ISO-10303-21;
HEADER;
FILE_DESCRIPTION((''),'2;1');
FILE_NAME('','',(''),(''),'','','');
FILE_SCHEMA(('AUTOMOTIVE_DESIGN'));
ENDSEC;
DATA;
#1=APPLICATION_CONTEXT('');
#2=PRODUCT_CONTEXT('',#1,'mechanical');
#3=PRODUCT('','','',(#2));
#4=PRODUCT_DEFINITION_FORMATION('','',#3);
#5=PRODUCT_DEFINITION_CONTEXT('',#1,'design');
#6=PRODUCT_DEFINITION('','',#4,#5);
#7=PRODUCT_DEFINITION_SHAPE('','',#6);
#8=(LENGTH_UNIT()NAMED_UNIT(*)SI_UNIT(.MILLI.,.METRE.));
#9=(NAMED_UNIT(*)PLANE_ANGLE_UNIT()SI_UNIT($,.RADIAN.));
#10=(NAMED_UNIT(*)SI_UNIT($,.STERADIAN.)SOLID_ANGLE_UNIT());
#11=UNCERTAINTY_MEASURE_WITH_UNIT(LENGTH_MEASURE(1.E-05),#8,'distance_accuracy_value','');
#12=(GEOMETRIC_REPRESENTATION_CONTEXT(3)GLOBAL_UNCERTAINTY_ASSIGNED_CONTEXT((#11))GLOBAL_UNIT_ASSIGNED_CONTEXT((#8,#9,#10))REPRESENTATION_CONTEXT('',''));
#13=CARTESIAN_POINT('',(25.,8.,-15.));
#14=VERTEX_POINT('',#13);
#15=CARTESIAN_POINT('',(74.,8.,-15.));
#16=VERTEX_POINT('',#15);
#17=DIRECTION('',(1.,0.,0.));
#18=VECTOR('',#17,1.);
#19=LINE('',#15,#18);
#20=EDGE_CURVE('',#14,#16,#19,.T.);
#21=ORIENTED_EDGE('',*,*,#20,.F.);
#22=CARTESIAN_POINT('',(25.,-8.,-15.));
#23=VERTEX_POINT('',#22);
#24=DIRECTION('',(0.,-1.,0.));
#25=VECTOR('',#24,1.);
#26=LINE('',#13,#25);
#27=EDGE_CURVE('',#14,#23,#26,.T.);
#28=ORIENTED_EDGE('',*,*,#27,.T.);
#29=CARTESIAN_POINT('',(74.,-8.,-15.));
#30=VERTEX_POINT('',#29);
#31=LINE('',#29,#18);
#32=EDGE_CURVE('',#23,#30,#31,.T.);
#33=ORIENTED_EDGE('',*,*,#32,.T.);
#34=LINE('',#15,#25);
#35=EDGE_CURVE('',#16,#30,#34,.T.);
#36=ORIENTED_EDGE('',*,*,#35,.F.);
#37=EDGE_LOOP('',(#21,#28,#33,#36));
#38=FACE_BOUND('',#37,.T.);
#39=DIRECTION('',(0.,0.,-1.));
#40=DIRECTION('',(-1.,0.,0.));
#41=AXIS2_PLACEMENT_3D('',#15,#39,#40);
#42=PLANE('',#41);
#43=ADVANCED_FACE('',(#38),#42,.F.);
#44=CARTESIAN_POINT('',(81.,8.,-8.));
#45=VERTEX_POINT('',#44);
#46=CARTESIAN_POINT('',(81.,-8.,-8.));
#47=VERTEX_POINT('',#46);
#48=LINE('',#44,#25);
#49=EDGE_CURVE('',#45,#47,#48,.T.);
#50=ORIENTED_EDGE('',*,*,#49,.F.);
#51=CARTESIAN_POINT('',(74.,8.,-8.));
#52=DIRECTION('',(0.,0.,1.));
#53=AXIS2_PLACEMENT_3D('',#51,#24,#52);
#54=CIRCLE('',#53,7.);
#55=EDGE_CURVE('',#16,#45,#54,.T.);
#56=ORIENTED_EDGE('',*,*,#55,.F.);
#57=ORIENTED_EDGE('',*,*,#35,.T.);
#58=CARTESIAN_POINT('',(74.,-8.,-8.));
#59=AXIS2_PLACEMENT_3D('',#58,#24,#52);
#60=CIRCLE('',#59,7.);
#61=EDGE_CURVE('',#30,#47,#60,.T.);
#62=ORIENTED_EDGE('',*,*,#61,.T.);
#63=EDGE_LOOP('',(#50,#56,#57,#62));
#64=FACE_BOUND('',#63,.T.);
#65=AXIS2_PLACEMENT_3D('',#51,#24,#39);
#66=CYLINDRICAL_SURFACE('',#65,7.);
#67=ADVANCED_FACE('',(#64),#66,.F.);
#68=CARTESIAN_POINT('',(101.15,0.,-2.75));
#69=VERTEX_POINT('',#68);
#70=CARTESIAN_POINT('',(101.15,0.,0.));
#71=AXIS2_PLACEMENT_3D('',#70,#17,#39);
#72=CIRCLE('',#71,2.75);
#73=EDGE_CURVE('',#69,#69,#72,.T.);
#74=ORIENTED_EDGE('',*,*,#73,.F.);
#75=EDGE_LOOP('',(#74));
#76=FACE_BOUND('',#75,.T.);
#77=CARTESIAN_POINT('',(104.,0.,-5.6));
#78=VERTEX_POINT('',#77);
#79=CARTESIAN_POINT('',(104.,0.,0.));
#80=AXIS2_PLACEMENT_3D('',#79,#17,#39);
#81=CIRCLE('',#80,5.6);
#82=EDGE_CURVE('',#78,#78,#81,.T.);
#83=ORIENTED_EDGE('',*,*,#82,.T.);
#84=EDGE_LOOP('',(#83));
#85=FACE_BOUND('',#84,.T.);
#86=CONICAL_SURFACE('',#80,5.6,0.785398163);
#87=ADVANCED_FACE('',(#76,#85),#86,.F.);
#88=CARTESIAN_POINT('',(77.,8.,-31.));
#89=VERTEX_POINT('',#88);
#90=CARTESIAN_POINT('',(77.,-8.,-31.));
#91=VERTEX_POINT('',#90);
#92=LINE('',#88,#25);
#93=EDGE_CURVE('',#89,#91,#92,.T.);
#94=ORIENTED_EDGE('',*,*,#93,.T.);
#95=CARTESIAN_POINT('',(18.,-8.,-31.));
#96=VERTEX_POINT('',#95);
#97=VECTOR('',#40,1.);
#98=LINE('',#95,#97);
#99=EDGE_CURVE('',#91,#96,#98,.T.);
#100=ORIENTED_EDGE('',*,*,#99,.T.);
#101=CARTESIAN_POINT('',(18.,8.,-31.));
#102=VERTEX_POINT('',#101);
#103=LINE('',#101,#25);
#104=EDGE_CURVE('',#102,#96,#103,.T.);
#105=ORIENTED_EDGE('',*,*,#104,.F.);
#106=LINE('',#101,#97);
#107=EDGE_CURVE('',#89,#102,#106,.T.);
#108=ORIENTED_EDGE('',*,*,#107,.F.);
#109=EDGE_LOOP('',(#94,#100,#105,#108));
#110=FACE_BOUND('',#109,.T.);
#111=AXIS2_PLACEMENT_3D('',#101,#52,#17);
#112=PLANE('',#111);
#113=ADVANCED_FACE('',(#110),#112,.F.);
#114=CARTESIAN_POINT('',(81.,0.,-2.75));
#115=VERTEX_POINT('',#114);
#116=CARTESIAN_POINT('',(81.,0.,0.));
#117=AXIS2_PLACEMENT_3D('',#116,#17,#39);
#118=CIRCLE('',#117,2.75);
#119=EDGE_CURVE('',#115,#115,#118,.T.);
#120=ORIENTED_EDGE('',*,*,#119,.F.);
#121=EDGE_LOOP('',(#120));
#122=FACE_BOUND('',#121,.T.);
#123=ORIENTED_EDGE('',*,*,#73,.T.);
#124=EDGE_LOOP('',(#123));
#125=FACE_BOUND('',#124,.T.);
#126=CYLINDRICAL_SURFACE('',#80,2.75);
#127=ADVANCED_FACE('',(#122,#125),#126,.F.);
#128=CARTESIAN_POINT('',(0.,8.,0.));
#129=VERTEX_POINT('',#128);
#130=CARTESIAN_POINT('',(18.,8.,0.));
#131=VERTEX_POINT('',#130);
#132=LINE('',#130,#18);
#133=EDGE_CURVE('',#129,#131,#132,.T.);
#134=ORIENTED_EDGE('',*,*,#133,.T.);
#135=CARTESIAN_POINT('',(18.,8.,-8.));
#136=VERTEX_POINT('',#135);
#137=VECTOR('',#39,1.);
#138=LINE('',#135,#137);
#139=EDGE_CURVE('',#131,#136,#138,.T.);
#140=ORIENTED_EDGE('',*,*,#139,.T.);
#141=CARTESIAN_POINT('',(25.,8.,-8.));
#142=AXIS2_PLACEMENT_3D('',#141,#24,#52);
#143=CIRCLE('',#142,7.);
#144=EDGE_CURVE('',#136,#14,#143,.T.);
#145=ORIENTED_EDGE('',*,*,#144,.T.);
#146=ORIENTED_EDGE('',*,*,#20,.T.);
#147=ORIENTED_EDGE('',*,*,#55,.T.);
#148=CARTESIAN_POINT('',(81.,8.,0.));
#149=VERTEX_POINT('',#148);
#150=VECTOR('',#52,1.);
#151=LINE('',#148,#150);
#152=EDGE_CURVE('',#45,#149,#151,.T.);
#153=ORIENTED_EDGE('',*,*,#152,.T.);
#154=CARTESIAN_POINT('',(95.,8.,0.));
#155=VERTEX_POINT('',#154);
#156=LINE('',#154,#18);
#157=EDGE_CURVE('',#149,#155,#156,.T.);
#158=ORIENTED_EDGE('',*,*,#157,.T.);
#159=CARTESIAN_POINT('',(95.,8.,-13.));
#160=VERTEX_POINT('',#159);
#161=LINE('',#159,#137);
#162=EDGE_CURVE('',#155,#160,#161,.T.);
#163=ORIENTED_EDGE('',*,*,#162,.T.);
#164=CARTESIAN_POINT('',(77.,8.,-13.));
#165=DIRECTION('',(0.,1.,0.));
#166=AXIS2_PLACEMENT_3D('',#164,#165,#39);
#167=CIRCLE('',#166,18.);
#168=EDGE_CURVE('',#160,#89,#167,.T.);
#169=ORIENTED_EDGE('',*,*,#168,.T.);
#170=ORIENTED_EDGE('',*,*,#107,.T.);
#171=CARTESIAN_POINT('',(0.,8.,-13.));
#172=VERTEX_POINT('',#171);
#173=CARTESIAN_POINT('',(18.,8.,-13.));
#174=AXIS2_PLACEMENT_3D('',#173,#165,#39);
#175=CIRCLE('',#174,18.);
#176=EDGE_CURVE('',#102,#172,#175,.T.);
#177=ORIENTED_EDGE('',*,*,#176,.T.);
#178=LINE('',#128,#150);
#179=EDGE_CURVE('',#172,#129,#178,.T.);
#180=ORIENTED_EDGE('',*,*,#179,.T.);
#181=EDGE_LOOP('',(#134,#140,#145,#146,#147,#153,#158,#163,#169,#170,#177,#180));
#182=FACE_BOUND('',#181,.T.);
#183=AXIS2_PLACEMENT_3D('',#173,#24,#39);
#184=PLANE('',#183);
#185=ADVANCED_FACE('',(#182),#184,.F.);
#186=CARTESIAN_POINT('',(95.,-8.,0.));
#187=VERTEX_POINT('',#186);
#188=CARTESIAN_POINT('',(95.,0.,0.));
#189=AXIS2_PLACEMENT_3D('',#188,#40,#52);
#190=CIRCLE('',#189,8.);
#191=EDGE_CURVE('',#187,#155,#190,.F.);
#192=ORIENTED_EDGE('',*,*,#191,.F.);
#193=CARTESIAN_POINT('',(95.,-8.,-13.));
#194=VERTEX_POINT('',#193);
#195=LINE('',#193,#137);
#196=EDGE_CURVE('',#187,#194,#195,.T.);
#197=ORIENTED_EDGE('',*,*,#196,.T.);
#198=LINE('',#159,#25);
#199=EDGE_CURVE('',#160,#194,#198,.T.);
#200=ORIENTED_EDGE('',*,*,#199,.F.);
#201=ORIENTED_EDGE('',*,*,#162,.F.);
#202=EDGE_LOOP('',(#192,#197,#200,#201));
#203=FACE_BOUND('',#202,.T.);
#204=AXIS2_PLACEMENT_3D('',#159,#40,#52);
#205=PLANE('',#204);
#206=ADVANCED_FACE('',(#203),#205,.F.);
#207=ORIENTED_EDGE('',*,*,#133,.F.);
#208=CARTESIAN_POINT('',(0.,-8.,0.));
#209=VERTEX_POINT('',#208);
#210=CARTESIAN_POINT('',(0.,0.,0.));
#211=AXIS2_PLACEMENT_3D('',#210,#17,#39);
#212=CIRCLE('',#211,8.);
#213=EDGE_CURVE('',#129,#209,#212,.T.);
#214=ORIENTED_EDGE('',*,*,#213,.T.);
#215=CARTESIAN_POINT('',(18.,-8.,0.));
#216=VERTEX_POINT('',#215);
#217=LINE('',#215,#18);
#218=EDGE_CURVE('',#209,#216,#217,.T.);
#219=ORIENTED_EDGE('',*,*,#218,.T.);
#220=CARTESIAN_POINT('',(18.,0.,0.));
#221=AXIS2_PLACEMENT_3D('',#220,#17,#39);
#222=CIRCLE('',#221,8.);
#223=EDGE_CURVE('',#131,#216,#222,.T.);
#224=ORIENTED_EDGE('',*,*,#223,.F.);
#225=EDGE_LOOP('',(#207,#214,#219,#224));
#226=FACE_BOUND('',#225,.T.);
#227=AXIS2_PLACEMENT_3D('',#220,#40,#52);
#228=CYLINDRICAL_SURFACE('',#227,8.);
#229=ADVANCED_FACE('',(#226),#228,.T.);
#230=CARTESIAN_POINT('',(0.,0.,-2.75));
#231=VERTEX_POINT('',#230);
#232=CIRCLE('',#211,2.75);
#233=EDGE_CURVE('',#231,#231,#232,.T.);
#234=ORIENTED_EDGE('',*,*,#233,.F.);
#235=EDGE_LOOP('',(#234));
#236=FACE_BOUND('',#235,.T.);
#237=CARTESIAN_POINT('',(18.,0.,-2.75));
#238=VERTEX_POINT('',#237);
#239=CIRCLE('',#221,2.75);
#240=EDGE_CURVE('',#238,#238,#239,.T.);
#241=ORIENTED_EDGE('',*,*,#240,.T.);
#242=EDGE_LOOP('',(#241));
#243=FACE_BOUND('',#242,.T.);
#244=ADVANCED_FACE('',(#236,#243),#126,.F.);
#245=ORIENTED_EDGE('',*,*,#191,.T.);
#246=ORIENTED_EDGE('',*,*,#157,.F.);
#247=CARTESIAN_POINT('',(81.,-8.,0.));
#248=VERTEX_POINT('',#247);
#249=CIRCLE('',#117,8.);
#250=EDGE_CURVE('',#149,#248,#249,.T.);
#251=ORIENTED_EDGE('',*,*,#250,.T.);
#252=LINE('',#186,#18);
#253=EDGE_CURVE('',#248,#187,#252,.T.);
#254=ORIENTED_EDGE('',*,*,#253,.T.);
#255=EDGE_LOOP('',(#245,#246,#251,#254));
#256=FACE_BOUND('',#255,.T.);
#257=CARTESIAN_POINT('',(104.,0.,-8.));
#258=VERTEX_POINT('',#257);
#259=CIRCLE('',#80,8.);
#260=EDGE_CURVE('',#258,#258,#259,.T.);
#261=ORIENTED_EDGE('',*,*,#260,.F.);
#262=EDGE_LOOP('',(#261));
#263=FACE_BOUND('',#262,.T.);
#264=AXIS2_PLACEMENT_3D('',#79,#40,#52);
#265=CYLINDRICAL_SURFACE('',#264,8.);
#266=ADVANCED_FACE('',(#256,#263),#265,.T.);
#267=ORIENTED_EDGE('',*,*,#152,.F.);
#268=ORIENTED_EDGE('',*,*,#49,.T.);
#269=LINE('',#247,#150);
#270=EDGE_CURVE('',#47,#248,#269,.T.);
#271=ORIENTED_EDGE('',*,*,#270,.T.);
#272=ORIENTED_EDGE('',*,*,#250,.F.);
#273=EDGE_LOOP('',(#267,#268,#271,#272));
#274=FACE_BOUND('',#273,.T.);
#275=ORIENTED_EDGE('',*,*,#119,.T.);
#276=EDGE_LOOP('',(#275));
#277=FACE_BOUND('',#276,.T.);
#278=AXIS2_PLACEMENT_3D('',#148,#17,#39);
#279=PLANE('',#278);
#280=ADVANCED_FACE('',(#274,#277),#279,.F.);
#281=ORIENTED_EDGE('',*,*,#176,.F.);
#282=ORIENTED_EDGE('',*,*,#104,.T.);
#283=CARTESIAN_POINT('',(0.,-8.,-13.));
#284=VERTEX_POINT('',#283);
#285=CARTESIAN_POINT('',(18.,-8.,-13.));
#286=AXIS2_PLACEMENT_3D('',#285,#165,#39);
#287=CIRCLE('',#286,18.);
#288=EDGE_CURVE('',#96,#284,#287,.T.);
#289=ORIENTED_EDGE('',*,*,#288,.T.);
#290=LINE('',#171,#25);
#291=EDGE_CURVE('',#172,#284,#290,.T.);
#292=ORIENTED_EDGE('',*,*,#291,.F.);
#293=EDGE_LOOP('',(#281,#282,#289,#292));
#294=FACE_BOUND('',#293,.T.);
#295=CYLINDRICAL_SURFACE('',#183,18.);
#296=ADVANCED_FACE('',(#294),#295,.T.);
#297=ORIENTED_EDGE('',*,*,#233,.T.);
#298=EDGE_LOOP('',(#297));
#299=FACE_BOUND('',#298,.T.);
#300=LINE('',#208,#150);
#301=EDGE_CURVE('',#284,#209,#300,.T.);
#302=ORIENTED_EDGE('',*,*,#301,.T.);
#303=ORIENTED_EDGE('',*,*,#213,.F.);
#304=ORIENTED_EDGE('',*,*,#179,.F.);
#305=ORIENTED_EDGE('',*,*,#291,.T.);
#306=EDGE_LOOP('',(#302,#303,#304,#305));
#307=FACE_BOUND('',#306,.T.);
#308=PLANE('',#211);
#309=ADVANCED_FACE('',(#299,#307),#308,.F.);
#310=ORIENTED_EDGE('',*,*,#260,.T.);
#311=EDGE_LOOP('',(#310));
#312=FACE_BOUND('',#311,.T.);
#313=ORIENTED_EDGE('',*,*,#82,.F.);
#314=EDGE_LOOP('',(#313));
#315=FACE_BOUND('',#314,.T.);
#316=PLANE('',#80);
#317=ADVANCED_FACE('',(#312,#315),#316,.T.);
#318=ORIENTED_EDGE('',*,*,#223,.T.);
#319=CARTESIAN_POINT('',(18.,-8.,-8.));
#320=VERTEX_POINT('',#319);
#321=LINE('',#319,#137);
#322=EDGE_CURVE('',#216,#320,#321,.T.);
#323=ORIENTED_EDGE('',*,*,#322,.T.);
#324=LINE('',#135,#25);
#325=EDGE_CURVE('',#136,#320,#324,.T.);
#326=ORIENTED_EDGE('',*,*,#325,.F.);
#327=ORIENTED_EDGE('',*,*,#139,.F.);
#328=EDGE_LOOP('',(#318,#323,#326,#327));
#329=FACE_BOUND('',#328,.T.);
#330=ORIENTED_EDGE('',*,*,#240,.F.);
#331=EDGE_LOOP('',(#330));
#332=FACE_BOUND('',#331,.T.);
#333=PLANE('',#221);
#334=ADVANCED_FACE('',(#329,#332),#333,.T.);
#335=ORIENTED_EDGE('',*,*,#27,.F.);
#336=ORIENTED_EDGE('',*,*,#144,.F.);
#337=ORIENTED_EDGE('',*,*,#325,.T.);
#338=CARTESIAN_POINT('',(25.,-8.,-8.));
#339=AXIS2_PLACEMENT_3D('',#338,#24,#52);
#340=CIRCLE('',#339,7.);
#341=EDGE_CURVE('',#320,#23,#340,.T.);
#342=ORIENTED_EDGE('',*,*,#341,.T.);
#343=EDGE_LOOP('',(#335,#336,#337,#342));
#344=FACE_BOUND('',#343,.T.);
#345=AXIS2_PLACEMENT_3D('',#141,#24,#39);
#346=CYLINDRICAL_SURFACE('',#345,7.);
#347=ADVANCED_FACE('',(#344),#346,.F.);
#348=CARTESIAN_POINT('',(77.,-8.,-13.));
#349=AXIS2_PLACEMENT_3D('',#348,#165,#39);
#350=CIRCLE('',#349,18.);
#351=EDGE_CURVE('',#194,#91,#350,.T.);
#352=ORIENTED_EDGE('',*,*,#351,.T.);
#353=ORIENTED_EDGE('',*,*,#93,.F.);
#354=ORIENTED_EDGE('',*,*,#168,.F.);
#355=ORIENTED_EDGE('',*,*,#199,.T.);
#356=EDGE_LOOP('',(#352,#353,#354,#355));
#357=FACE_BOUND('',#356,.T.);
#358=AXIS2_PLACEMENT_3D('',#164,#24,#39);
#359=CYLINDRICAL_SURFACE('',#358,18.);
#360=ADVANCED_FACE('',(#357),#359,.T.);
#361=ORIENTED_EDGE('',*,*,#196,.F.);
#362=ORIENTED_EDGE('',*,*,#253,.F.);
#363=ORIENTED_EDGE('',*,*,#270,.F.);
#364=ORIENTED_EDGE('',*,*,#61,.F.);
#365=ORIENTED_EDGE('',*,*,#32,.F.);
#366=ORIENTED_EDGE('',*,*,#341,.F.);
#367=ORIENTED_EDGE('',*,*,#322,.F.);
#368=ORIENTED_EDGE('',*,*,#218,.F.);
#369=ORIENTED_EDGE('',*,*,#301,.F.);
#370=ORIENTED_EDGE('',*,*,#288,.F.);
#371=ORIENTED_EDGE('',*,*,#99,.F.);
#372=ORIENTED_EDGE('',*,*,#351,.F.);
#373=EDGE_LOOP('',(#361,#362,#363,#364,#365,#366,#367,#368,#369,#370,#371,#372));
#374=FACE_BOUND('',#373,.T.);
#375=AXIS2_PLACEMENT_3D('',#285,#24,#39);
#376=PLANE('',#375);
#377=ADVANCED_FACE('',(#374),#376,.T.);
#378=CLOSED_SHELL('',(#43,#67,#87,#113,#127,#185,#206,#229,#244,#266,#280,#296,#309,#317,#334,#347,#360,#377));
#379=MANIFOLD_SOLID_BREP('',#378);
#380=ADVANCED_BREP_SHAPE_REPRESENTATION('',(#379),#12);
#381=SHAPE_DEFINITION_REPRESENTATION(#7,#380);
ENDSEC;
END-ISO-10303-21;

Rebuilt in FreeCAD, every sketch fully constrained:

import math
import FreeCAD as App
import Part
import Sketcher
Q = App.Units.Quantity

doc = App.newDocument("Part")
body = doc.addObject("PartDesign::Body", "Body")

# Sketch on YZ plane
sketch1 = doc.addObject("Sketcher::SketchObject", "Sketch")
body.addObject(sketch1)
sketch1.AttachmentSupport = (doc.YZ_Plane, [""])
sketch1.MapMode = "FlatFace"
sketch1.addGeometry(Part.Circle(App.Vector(0, 0, 0), App.Vector(0, 0, 1), 8), False)
sketch1.addConstraint([
    Sketcher.Constraint("Coincident", 0, 3, -1, 1),
    Sketcher.Constraint("Diameter", 0, Q("16 mm")),
])
pad1 = doc.addObject("PartDesign::Pad", "Pad")
body.addObject(pad1)
pad1.Profile = sketch1
pad1.Length = 18
body2 = doc.addObject("PartDesign::Body", "Body001")

# Sketch on YZ plane
sketch2 = doc.addObject("Sketcher::SketchObject", "Sketch001")
body2.addObject(sketch2)
sketch2.AttachmentSupport = (doc.getObject("YZ_Plane001"), [""])
sketch2.MapMode = "FlatFace"
sketch2.AttachmentOffset = App.Placement(App.Vector(0, 0, 81), App.Rotation())
sketch2.addGeometry(Part.Circle(App.Vector(0, 0, 0), App.Vector(0, 0, 1), 8), False)
sketch2.addConstraint([
    Sketcher.Constraint("Coincident", 0, 3, -1, 1),
    Sketcher.Constraint("Diameter", 0, Q("16 mm")),
])
pad2 = doc.addObject("PartDesign::Pad", "Pad001")
body2.addObject(pad2)
pad2.Profile = sketch2
pad2.Length = 23
body.AllowCompound = True
doc.recompute()

boolean = doc.addObject("PartDesign::Boolean", "Boolean")
body.addObject(boolean)
boolean.Type = "Fuse"
boolean.addObjects([body2])

# Sketch on XZ plane
sketch3 = doc.addObject("Sketcher::SketchObject", "Sketch002")
body.addObject(sketch3)
sketch3.AttachmentSupport = (doc.XZ_Plane, [""])
sketch3.MapMode = "FlatFace"
sketch3.addGeometry([
    Part.LineSegment(App.Vector(0, -13, 0), App.Vector(0, 0, 0)),  # 0
    Part.LineSegment(App.Vector(0, 0, 0), App.Vector(18, 0, 0)),  # 1
    Part.LineSegment(App.Vector(18, 0, 0), App.Vector(18, -8, 0)),  # 2
    Part.ArcOfCircle(Part.Circle(App.Vector(25, -8, 0), App.Vector(0, 0, 1), 7), math.radians(-180), math.radians(-90)),  # 3
    Part.LineSegment(App.Vector(25, -15, 0), App.Vector(74, -15, 0)),  # 4
    Part.ArcOfCircle(Part.Circle(App.Vector(74, -8, 0), App.Vector(0, 0, 1), 7), math.radians(-90), math.radians(0)),  # 5
    Part.LineSegment(App.Vector(81, -8, 0), App.Vector(81, 0, 0)),  # 6
    Part.LineSegment(App.Vector(81, 0, 0), App.Vector(95, 0, 0)),  # 7
    Part.LineSegment(App.Vector(95, 0, 0), App.Vector(95, -13, 0)),  # 8
    Part.ArcOfCircle(Part.Circle(App.Vector(77, -13, 0), App.Vector(0, 0, 1), 18), math.radians(-90), math.radians(0)),  # 9
    Part.LineSegment(App.Vector(77, -31, 0), App.Vector(18, -31, 0)),  # 10
    Part.ArcOfCircle(Part.Circle(App.Vector(18, -13, 0), App.Vector(0, 0, 1), 18), math.radians(-180), math.radians(-90)),  # 11
], False)
sketch3.addConstraint([
    Sketcher.Constraint("Coincident", 0, 2, 1, 1),
    Sketcher.Constraint("Coincident", 1, 2, 2, 1),
    Sketcher.Constraint("Tangent", 2, 2, 3, 1),
    Sketcher.Constraint("Tangent", 3, 2, 4, 1),
    Sketcher.Constraint("Tangent", 4, 2, 5, 1),
    Sketcher.Constraint("Tangent", 5, 2, 6, 1),
    Sketcher.Constraint("Coincident", 6, 2, 7, 1),
    Sketcher.Constraint("Coincident", 7, 2, 8, 1),
    Sketcher.Constraint("Tangent", 8, 2, 9, 2),
    Sketcher.Constraint("Tangent", 9, 1, 10, 1),
    Sketcher.Constraint("Tangent", 10, 2, 11, 2),
    Sketcher.Constraint("Tangent", 11, 1, 0, 1),
    Sketcher.Constraint("Vertical", 0),
    Sketcher.Constraint("Horizontal", 1),
    Sketcher.Constraint("Vertical", 2),
    Sketcher.Constraint("Horizontal", 4),
    Sketcher.Constraint("Vertical", 6),
    Sketcher.Constraint("Horizontal", 7),
    Sketcher.Constraint("Vertical", 8),
    Sketcher.Constraint("Horizontal", 10),
    Sketcher.Constraint("Coincident", 0, 2, -1, 1),
    Sketcher.Constraint("Equal", 3, 5),
    Sketcher.Constraint("Equal", 9, 11),
    Sketcher.Constraint("PointOnObject", 6, 2, -1),
    Sketcher.Constraint("Vertical", 11, 3, 1, 2),
    Sketcher.Constraint("Radius", 3, Q("7 mm")),
    Sketcher.Constraint("Radius", 9, Q("18 mm")),
    Sketcher.Constraint("DistanceX", 4, 1, 4, 2, Q("49 mm")),
    Sketcher.Constraint("DistanceX", 7, 1, 7, 2, Q("14 mm")),
    Sketcher.Constraint("DistanceY", 0, 1, 0, 2, Q("13 mm")),
    Sketcher.Constraint("DistanceY", 2, 2, 2, 1, Q("8 mm")),
])
pad3 = doc.addObject("PartDesign::Pad", "Pad002")
body.addObject(pad3)
pad3.Profile = sketch3
pad3.Length = 16
pad3.Midplane = True

# Sketch on YZ plane
sketch4 = doc.addObject("Sketcher::SketchObject", "Sketch003")
body.addObject(sketch4)
sketch4.AttachmentSupport = (doc.YZ_Plane, [""])
sketch4.MapMode = "FlatFace"
sketch4.AttachmentOffset = App.Placement(App.Vector(0, 0, 104), App.Rotation())
sketch4.addGeometry(Part.Circle(App.Vector(0, 0, 0), App.Vector(0, 0, 1), 2.8), False)
sketch4.addConstraint([
    Sketcher.Constraint("Coincident", 0, 3, -1, 1),
    Sketcher.Constraint("Diameter", 0, Q("5.5 mm")),
])
doc.recompute()
hole = doc.addObject("PartDesign::Hole", "Hole")
body.addObject(hole)
hole.Profile = sketch4
hole.ThreadType = "None"
hole.Diameter = 5.5
hole.DepthType = "ThroughAll"
hole.HoleCutType = "Countersink"
hole.HoleCutDiameter = 11.2
hole.HoleCutCountersinkAngle = 90

doc.recompute()
